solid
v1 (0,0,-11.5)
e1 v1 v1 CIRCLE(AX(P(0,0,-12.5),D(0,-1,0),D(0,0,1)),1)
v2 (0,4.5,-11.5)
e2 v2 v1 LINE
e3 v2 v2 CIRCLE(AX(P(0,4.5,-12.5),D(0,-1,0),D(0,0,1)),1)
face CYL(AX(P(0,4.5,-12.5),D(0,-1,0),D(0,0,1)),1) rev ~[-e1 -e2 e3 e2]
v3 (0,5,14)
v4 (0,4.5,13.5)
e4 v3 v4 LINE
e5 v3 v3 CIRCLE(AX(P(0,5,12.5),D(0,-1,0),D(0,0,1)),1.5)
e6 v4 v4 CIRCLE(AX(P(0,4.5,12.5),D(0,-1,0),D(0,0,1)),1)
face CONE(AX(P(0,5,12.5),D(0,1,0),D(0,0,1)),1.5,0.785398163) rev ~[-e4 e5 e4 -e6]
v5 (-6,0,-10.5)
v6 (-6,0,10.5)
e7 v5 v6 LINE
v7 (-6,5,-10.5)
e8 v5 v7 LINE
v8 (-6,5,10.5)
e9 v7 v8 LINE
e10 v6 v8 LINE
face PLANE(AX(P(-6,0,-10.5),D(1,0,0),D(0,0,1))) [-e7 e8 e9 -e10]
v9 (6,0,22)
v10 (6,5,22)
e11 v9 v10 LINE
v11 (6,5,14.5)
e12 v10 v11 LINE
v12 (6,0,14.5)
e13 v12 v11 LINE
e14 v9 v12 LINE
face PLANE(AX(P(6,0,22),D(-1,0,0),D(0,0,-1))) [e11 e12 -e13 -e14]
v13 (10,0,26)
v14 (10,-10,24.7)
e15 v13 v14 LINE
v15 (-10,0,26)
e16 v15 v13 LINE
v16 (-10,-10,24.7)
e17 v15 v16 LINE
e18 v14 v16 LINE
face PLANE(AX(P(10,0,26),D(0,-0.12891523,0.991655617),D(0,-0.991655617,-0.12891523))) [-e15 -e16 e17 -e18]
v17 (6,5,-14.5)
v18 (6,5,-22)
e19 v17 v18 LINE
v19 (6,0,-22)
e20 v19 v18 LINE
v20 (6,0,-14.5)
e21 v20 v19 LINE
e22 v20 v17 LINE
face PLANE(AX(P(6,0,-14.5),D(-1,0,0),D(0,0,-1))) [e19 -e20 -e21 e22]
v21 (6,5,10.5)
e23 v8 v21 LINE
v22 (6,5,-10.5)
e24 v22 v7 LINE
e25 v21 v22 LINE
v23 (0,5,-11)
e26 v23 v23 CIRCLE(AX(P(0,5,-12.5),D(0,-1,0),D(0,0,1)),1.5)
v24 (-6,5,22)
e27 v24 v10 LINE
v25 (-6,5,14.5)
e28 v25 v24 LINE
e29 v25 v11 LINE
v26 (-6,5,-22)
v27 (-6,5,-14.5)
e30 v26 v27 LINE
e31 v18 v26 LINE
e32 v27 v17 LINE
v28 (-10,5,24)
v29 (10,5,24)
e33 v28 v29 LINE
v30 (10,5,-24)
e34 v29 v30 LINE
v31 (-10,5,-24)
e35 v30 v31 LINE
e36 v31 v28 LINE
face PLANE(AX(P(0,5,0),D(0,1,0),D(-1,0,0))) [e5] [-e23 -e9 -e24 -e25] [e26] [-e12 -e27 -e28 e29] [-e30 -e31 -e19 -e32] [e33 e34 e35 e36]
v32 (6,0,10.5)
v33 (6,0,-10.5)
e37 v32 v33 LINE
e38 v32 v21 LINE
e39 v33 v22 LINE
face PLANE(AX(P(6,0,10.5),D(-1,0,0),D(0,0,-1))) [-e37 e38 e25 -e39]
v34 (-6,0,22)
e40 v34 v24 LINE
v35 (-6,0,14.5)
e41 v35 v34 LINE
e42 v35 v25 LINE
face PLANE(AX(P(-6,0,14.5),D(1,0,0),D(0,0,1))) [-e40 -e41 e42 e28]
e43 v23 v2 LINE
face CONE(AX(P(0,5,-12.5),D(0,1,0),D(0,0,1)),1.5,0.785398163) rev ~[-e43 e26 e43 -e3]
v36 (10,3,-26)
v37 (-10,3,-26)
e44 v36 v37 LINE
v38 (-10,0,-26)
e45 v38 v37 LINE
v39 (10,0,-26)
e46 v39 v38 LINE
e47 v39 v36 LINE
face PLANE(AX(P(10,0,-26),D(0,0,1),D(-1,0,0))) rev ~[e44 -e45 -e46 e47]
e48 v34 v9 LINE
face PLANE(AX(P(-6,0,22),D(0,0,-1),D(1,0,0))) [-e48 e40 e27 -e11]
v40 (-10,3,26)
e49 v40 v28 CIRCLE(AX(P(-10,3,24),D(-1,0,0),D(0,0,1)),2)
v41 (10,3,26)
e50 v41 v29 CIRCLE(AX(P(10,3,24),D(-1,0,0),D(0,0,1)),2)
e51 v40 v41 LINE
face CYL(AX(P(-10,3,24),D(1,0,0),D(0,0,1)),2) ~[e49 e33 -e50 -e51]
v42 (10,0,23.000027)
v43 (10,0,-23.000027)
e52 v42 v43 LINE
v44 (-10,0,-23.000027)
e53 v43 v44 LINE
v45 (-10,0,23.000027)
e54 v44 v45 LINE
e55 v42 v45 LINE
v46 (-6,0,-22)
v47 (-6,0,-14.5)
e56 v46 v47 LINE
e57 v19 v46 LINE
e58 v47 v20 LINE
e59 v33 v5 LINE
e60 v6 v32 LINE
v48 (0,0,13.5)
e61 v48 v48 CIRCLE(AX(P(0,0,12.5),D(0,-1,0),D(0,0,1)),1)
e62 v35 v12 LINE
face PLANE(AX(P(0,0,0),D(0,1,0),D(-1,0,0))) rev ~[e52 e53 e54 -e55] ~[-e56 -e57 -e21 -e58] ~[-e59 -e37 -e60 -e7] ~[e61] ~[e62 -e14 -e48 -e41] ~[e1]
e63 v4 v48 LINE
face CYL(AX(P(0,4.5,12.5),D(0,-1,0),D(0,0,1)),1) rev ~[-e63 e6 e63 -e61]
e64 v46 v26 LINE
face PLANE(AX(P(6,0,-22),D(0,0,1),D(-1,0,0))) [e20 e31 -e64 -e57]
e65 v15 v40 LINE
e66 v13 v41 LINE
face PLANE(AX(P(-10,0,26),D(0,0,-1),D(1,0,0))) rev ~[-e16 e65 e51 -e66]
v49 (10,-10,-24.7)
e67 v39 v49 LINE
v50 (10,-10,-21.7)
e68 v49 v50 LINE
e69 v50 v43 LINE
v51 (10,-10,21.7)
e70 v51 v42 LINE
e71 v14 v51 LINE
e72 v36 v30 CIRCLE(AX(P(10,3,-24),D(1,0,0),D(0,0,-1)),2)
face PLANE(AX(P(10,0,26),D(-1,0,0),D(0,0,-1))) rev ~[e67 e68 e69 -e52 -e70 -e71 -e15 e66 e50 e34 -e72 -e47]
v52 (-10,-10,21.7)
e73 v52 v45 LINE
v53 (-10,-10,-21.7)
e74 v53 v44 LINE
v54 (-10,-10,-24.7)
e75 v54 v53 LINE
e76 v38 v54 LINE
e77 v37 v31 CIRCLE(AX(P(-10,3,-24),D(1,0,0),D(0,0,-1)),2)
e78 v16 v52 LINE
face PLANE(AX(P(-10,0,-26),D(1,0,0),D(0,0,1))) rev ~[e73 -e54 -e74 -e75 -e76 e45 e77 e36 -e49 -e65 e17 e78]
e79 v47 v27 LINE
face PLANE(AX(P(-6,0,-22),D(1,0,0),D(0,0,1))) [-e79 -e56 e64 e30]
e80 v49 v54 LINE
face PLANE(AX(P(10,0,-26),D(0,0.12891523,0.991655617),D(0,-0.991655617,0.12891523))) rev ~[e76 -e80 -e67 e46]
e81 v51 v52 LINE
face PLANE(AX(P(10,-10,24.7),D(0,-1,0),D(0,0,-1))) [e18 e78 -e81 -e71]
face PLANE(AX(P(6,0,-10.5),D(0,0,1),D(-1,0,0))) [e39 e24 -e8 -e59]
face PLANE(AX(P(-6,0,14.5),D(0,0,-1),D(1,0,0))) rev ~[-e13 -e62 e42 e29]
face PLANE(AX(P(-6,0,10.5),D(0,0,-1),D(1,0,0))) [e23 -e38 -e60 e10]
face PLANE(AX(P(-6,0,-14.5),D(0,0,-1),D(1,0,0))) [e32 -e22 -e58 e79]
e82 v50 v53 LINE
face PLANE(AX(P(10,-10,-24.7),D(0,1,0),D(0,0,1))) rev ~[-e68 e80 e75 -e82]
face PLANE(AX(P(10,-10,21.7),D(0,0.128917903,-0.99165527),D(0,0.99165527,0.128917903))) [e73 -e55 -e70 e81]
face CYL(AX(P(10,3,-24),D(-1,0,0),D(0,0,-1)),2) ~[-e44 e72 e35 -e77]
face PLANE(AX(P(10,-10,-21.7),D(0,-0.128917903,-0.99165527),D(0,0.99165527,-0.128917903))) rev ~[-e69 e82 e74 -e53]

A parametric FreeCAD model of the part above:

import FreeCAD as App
import Part
import Sketcher
from FreeCAD import Vector


def edges_at(feature, points):
    """Names of the edges that pass closest to the given points."""
    edges = feature.Shape.Edges
    near = lambda p: min(range(len(edges)), key=lambda i: edges[i].distToShape(Part.Vertex(*p))[0])
    return sorted({f"Edge{near(p) + 1}" for p in points})


def add_polygon(sketch, points):
    """Adds a closed chain of lines whose ends are joined by coincident constraints."""
    first, n = sketch.GeometryCount, len(points)
    for a, b in zip(points, points[1:] + points[:1]):
        sketch.addGeometry(Part.LineSegment(App.Vector(*a, 0), App.Vector(*b, 0)), False)
    for i in range(n):
        sketch.addConstraint(Sketcher.Constraint("Coincident", first + i, 2, first + (i + 1) % n, 1))

doc = App.newDocument("Part")
body = doc.addObject("PartDesign::Body", "Body")

sketch1 = body.newObject("Sketcher::SketchObject", "Sketch")
sketch1.AttachmentSupport = (doc.getObject("XZ_Plane"), [""])
sketch1.MapMode = "FlatFace"
add_polygon(sketch1, [(-10, -26), (-10, 26), (10, 26), (10, -26)])
add_polygon(sketch1, [(6, 22), (-6, 22), (-6, 14), (6, 14)])
add_polygon(sketch1, [(6, -10), (6, 10), (-6, 10), (-6, -10)])
add_polygon(sketch1, [(6, -22), (6, -14), (-6, -14), (-6, -22)])
sketch1.addConstraint([
    Sketcher.Constraint("Vertical", 0),
    Sketcher.Constraint("Horizontal", 1),
    Sketcher.Constraint("Vertical", 2),
    Sketcher.Constraint("Horizontal", 3),
    Sketcher.Constraint("Horizontal", 4),
    Sketcher.Constraint("Vertical", 5),
    Sketcher.Constraint("Horizontal", 6),
    Sketcher.Constraint("Vertical", 7),
    Sketcher.Constraint("Vertical", 8),
    Sketcher.Constraint("Horizontal", 9),
    Sketcher.Constraint("Vertical", 10),
    Sketcher.Constraint("Horizontal", 11),
    Sketcher.Constraint("Vertical", 12),
    Sketcher.Constraint("Horizontal", 13),
    Sketcher.Constraint("Vertical", 14),
    Sketcher.Constraint("Horizontal", 15),
    Sketcher.Constraint("Symmetric", 0, 2, 2, 2, -1, 1),
    Sketcher.Constraint("Symmetric", 8, 2, 10, 2, -1, 1),
    Sketcher.Constraint("Symmetric", 5, 2, 12, 2, -1, 1),
    Sketcher.Constraint("Symmetric", 7, 2, 14, 2, -1, 1),
    Sketcher.Constraint("Vertical", 7, 2, 8, 2),
    Sketcher.Constraint("Vertical", 5, 2, 9, 2),
    Sketcher.Constraint("DistanceX", 1, 1, 1, 2, 20.0),
    Sketcher.Constraint("DistanceY", 0, 1, 0, 2, 52.0),
    Sketcher.Constraint("DistanceY", 8, 1, 8, 2, 21.0),
    Sketcher.Constraint("DistanceX", 0, 2, 4, 2, 4.0),
    Sketcher.Constraint("DistanceY", 4, 2, 0, 2, 4.0),
    Sketcher.Constraint("DistanceY", 8, 2, 6, 2, 4.0),
])
pad1 = body.newObject("PartDesign::Pad", "Pad")
pad1.Profile = sketch1
pad1.Length = 5
pad1.Reversed = True

sketch2 = body.newObject("Sketcher::SketchObject", "Sketch001")
sketch2.AttachmentSupport = (doc.getObject("XZ_Plane"), [""])
sketch2.MapMode = "FlatFace"
sketch2.AttachmentOffset = App.Placement(Vector(0, 0, -5), App.Rotation())
sketch2.addGeometry([
    Part.Circle(Vector(0, 12.5, 0), Vector(0, 0, 1), 1),
    Part.Circle(Vector(0, -12.5, 0), Vector(0, 0, 1), 1),
], False)
sketch2.addConstraint([
    Sketcher.Constraint("Equal", 0, 1),
    Sketcher.Constraint("Symmetric", 0, 3, 1, 3, -1, 1),
    Sketcher.Constraint("PointOnObject", 0, 3, -2),
    Sketcher.Constraint("Diameter", 0, 2.0),
    Sketcher.Constraint("DistanceY", 1, 3, 0, 3, 25.0),
])
doc.recompute()
hole = body.newObject("PartDesign::Hole", "Hole")
hole.Profile = sketch2
hole.ThreadType = "None"
hole.Diameter = 2
hole.DepthType = "ThroughAll"
hole.HoleCutType = "Countersink"
hole.HoleCutDiameter = 3
hole.HoleCutCountersinkAngle = 90
hole.Reversed = True

sketch3 = body.newObject("Sketcher::SketchObject", "Sketch002")
sketch3.AttachmentSupport = (doc.getObject("YZ_Plane"), [""])
sketch3.MapMode = "FlatFace"
sketch3.AttachmentOffset = App.Placement(Vector(0, 0, 10), App.Rotation())
add_polygon(sketch3, [(0, 23), (0, 26), (-10, 24.7), (-10, 21.7)])
add_polygon(sketch3, [(0, -26), (0, -23), (-10, -21.7), (-10, -24.7)])
sketch3.addConstraint([
    Sketcher.Constraint("Vertical", 0),
    Sketcher.Constraint("Vertical", 2),
    Sketcher.Constraint("Vertical", 4),
    Sketcher.Constraint("Vertical", 6),
    Sketcher.Constraint("Symmetric", 3, 2, 4, 2, -1, 1),
    Sketcher.Constraint("Symmetric", 2, 2, 5, 2, -1),
    Sketcher.Constraint("Symmetric", 0, 2, 7, 2, -1),
    Sketcher.Constraint("Parallel", 1, 3),
    Sketcher.Constraint("Parallel", 5, 7),
    Sketcher.Constraint("DistanceY", 0, 1, 0, 2, 3.0),
    Sketcher.Constraint("DistanceX", 1, 2, -1, 1, 10.0),
    Sketcher.Constraint("DistanceY", 2, 2, 0, 2, 4.3),
    Sketcher.Constraint("DistanceY", -1, 1, 0, 2, 26.0),
])
pad2 = body.newObject("PartDesign::Pad", "Pad001")
pad2.Profile = sketch3
pad2.Length = 20
pad2.Reversed = True
doc.recompute()

fillet = body.newObject("PartDesign::Fillet", "Fillet")
fillet.Base = (pad2, edges_at(pad2, [(0, 5, 26), (0, 5, -26)]))
fillet.Radius = 2

doc.recompute()
